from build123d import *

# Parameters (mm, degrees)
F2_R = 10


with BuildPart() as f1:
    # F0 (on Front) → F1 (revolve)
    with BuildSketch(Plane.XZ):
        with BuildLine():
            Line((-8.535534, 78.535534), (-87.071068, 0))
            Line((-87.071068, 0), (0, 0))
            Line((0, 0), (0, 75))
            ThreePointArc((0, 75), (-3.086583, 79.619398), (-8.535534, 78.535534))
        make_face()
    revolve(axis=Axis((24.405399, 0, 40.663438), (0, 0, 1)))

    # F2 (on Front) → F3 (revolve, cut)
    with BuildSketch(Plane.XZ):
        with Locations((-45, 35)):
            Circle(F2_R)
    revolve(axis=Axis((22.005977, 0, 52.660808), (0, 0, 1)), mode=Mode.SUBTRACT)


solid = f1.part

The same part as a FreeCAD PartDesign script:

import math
import FreeCAD as App
import Part
import Sketcher
Q = App.Units.Quantity

doc = App.newDocument("Part")
body = doc.addObject("PartDesign::Body", "Body")

sketch1 = body.newObject("Sketcher::SketchObject", "Sketch")
sketch1.AttachmentSupport = (doc.getObject("XZ_Plane"), [""])
sketch1.MapMode = "FlatFace"
sketch1.addGeometry([
    Part.LineSegment(App.Vector(-8.5, 78.5, 0), App.Vector(-87.1, 0, 0)),
    Part.LineSegment(App.Vector(-87.1, 0, 0), App.Vector(0, 0, 0)),
    Part.LineSegment(App.Vector(0, 0, 0), App.Vector(0, 75, 0)),
    Part.ArcOfCircle(Part.Circle(App.Vector(-5, 75, 0), App.Vector(0, 0, 1), 5), math.radians(0), math.radians(135)),
], False)
sketch1.addGeometry(Part.LineSegment(App.Vector(24.4, 0, 0), App.Vector(24.4, 78.5, 0)), True)
sketch1.addConstraint([
    Sketcher.Constraint("Coincident", 0, 2, 1, 1),
    Sketcher.Constraint("Coincident", 1, 2, 2, 1),
    Sketcher.Constraint("Tangent", 2, 2, 3, 1),
    Sketcher.Constraint("Tangent", 3, 2, 0, 1),
    Sketcher.Constraint("Horizontal", 1),
    Sketcher.Constraint("Vertical", 2),
    Sketcher.Constraint("Vertical", 4),
    Sketcher.Constraint("Coincident", 1, 2, -1, 1),
    Sketcher.Constraint("PointOnObject", 4, 1, -1),
    Sketcher.Constraint("Horizontal", 3, 2, 4, 2),
    Sketcher.Constraint("Radius", 3, 5.0),
    Sketcher.Constraint("DistanceY", 2, 1, 2, 2, 75.0),
    Sketcher.Constraint("Angle", 0, Q("-135 deg")),
    Sketcher.Constraint("DistanceX", -1, 1, 4, 1, 24.405399),
])
revolution = body.newObject("PartDesign::Revolution", "Revolution")
revolution.Profile = sketch1
revolution.ReferenceAxis = (sketch1, ["Axis0"])
revolution.Angle = 360

sketch2 = body.newObject("Sketcher::SketchObject", "Sketch001")
sketch2.AttachmentSupport = (doc.getObject("XZ_Plane"), [""])
sketch2.MapMode = "FlatFace"
sketch2.addGeometry(Part.Circle(App.Vector(-45, 35, 0), App.Vector(0, 0, 1), 10), False)
sketch2.addGeometry(Part.LineSegment(App.Vector(22, 35, 0), App.Vector(22, 45, 0)), True)
sketch2.addConstraint([
    Sketcher.Constraint("Vertical", 1),
    Sketcher.Constraint("Horizontal", 0, 3, 1, 1),
    Sketcher.Constraint("Diameter", 0, 20.0),
    Sketcher.Constraint("DistanceY", 1, 1, 1, 2, 10.0),
    Sketcher.Constraint("DistanceX", 0, 3, -1, 1, 45.0),
    Sketcher.Constraint("DistanceY", -1, 1, 0, 3, 35.0),
    Sketcher.Constraint("DistanceX", -1, 1, 1, 1, 22.005977),
])
groove = body.newObject("PartDesign::Groove", "Groove")
groove.Profile = sketch2
groove.ReferenceAxis = (sketch2, ["Axis0"])
groove.Angle = 360

doc.recompute()
